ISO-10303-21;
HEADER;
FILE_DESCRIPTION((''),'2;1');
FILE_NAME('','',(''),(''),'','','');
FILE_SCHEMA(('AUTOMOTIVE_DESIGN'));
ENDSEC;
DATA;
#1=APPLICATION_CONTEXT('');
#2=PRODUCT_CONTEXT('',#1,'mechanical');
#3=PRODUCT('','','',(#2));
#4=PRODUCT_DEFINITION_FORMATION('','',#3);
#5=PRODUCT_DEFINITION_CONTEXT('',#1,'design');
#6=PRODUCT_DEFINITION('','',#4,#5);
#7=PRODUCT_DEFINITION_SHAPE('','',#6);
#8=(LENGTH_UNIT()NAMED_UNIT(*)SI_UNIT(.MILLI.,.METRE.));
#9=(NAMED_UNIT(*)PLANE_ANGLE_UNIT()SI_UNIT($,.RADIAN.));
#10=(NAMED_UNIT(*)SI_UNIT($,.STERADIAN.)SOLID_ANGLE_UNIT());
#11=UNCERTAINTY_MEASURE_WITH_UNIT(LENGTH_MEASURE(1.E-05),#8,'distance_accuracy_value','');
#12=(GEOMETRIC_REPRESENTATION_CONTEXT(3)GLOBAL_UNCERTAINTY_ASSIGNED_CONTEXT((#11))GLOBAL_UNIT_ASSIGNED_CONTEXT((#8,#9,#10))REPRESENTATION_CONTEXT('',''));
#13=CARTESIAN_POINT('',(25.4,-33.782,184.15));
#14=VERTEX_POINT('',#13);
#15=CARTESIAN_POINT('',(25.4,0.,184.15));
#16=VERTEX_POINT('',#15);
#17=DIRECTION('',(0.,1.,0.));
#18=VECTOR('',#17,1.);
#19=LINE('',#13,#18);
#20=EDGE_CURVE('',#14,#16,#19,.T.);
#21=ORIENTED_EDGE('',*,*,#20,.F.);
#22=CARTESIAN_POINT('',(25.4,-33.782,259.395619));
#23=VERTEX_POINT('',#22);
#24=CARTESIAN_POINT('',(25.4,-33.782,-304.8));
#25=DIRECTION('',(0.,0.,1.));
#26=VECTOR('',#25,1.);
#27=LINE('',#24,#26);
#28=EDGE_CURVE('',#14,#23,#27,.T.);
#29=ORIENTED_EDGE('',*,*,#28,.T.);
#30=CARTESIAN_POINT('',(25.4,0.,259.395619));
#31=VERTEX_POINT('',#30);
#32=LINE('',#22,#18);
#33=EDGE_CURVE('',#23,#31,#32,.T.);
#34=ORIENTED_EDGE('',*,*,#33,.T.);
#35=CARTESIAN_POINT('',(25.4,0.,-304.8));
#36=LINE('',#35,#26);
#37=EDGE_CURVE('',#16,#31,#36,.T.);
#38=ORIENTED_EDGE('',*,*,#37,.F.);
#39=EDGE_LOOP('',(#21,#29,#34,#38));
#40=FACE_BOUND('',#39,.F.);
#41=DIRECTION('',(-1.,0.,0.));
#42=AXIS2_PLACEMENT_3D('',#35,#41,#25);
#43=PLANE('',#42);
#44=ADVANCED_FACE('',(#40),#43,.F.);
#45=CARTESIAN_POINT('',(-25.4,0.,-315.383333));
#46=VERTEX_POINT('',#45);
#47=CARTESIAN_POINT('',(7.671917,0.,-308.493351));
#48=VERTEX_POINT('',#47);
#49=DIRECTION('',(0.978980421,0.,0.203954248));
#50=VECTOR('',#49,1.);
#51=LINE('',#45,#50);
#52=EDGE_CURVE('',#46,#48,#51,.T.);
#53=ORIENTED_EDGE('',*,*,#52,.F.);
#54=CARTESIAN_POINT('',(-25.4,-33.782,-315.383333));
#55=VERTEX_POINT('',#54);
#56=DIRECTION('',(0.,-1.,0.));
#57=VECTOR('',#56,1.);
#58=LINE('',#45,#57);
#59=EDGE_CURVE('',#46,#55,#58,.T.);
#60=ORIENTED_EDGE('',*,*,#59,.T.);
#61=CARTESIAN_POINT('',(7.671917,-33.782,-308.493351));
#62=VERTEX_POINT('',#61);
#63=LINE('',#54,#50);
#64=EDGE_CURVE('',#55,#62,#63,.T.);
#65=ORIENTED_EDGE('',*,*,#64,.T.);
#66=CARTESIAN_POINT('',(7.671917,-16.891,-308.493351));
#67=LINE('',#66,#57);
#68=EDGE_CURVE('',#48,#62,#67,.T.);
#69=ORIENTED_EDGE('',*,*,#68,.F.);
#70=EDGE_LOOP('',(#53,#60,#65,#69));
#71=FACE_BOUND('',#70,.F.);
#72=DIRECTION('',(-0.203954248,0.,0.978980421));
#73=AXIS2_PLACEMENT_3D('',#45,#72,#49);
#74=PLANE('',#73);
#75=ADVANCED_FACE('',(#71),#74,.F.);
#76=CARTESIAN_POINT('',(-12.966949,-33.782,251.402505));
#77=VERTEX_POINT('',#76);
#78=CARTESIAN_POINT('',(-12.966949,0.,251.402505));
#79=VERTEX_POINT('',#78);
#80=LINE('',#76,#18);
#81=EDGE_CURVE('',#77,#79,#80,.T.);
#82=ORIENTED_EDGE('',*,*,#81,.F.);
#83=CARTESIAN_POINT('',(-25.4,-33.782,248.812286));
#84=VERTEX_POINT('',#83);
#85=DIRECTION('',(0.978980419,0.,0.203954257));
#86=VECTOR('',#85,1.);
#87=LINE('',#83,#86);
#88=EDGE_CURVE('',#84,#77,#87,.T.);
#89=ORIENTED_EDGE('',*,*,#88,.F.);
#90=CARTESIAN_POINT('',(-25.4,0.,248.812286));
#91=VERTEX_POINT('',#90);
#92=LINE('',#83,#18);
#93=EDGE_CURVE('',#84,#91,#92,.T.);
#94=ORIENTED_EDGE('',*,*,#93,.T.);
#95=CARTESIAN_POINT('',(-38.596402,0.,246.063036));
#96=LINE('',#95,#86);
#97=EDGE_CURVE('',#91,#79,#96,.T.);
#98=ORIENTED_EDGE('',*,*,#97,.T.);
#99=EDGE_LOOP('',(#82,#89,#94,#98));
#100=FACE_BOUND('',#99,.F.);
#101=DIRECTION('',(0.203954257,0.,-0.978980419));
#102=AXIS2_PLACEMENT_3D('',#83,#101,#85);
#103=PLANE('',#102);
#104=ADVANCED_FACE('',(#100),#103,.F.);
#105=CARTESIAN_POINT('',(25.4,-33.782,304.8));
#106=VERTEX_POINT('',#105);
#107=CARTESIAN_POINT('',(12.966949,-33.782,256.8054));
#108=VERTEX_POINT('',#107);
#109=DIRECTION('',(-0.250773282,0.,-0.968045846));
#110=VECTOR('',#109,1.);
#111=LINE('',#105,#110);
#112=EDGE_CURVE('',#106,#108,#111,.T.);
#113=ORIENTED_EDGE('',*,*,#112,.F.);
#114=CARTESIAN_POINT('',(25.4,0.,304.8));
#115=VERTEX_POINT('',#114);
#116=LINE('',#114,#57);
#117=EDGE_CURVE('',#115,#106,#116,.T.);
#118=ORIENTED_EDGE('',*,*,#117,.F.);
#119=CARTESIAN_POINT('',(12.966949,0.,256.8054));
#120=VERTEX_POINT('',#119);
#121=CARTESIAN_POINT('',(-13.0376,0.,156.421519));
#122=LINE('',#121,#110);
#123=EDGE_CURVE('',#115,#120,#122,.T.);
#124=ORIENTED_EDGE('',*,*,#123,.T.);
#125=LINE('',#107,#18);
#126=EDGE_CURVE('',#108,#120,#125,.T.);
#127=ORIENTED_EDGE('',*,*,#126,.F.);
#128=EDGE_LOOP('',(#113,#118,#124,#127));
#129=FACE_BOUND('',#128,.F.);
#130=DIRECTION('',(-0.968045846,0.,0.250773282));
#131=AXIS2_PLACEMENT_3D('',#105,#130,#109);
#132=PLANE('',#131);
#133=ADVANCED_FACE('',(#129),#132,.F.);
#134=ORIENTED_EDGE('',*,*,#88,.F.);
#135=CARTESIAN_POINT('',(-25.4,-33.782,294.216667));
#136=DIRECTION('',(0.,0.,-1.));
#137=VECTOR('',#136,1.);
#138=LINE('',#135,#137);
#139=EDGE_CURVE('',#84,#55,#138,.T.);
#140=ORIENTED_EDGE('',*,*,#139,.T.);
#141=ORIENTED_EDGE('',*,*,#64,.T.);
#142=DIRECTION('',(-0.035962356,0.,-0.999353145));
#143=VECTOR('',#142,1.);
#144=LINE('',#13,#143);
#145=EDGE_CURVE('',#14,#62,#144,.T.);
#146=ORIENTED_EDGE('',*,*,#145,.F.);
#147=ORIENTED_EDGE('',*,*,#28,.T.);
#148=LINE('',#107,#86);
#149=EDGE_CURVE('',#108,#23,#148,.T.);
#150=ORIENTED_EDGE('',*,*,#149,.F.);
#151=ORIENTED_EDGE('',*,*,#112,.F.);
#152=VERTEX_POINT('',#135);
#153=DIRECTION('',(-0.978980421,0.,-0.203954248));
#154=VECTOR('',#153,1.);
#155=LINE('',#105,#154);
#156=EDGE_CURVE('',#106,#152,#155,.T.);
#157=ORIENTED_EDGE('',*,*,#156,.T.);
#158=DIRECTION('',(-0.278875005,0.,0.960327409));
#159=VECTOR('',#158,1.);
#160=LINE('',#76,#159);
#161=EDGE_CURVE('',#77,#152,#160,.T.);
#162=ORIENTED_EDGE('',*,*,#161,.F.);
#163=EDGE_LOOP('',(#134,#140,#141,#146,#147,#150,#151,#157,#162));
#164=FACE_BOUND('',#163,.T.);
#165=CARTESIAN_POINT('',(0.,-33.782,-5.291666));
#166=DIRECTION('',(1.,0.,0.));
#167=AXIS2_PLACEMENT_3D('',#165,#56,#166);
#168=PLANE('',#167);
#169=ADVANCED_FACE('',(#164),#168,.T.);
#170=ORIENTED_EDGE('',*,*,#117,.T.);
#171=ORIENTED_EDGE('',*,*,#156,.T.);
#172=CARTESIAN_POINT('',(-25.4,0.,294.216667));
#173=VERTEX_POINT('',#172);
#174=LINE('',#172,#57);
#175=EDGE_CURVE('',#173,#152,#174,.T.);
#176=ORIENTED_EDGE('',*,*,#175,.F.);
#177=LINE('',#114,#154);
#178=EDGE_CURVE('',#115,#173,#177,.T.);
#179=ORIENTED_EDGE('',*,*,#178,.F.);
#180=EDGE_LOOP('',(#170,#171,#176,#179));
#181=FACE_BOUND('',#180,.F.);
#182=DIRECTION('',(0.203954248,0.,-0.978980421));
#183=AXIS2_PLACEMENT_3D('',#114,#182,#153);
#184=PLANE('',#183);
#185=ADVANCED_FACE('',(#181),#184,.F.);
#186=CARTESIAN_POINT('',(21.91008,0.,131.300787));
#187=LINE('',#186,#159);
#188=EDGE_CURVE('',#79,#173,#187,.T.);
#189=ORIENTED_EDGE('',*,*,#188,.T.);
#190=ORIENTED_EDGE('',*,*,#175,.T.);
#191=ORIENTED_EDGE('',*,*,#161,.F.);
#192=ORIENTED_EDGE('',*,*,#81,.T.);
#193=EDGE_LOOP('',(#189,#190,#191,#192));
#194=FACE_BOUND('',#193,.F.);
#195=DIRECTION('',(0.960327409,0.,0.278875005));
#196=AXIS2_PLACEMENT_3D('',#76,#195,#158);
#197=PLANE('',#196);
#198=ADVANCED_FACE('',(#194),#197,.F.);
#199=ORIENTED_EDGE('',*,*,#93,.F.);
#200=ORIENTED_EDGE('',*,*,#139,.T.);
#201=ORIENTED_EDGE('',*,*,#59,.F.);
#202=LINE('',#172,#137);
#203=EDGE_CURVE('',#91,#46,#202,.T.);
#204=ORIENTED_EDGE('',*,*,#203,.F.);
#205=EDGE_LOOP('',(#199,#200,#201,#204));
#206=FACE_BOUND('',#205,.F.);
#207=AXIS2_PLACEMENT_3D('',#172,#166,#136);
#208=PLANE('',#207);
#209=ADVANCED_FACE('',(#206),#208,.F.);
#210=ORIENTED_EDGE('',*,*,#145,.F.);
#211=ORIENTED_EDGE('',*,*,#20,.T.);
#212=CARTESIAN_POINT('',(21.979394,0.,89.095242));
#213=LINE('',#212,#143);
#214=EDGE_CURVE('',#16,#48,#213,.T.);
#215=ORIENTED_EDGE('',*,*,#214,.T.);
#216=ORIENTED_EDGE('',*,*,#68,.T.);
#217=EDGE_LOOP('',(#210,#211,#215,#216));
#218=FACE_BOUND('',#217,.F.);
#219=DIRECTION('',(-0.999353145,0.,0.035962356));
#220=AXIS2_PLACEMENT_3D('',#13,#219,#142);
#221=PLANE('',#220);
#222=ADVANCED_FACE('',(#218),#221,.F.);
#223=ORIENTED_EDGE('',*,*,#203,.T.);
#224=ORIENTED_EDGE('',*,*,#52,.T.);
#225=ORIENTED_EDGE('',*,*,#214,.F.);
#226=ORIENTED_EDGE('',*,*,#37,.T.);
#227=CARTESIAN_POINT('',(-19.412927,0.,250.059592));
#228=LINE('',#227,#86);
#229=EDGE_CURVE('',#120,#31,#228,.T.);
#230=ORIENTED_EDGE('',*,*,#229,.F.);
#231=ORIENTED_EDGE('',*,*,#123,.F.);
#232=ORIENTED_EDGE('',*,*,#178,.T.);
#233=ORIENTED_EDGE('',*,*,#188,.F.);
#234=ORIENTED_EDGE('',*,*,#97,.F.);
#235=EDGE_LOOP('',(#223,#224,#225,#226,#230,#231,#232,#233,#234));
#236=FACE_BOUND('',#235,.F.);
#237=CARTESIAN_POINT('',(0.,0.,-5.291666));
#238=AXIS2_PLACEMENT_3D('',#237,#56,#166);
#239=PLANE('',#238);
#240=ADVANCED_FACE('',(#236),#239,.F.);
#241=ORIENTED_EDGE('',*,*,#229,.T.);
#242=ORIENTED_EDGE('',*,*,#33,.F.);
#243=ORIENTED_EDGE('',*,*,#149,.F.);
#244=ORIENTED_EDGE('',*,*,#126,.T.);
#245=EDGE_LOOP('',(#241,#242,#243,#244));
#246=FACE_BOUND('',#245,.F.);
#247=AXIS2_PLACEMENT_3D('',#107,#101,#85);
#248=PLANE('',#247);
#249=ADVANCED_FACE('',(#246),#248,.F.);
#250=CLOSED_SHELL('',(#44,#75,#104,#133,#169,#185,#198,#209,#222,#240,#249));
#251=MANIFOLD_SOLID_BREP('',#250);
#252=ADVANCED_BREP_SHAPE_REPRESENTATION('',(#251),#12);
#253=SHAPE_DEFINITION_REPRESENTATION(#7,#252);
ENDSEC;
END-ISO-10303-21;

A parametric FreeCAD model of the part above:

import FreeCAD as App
import Part
import Sketcher
from FreeCAD import Vector
Q = App.Units.Quantity


def add_polygon(sketch, points):
    """Adds a closed chain of lines whose ends are joined by coincident constraints."""
    first, n = sketch.GeometryCount, len(points)
    for a, b in zip(points, points[1:] + points[:1]):
        sketch.addGeometry(Part.LineSegment(App.Vector(*a, 0), App.Vector(*b, 0)), False)
    for i in range(n):
        sketch.addConstraint(Sketcher.Constraint("Coincident", first + i, 2, first + (i + 1) % n, 1))

doc = App.newDocument("Part")
params = doc.addObject("Spreadsheet::Sheet", "Params")
for row, (alias, value) in enumerate([
    ("sketch1_height", "24 in"),
    ("pad1_length", "1.33 in"),
    ("sketch2_height", "19.25 in"),
    ("sketch3_length", "0.5 in"),
], start=1):
    params.set(f"A{row}", alias)
    params.set(f"B{row}", "=" + value)
    params.setAlias(f"B{row}", alias)

body = doc.addObject("PartDesign::Body", "Body")

sketch1 = body.newObject("Sketcher::SketchObject", "Sketch")
sketch1.AttachmentSupport = (doc.getObject("XZ_Plane"), [""])
sketch1.MapMode = "FlatFace"
add_polygon(sketch1, [(25.4, -304.8), (25.4, 304.8), (-25.4, 294.216667), (-25.4, -315.383333)])
sketch1.addConstraint(Sketcher.Constraint("Vertical", 0))
sketch1.addConstraint(Sketcher.Constraint("Vertical", 2))
sketch1.addConstraint(Sketcher.Constraint("Parallel", 1, 3))
sketch1.addConstraint(Sketcher.Constraint("DistanceY", 0, 1, 0, 2, Q("24 in")))
sketch1.addConstraint(Sketcher.Constraint("DistanceX", -1, 1, 0, 2, Q("1 in")))
sketch1.addConstraint(Sketcher.Constraint("DistanceY", -1, 1, 0, 2, Q("12 in")))
sketch1.addConstraint(Sketcher.Constraint("DistanceX", 1, 2, -1, 1, Q("1 in")))
sketch1.addConstraint(Sketcher.Constraint("Distance", 1, 51.890721))
sketch1.setExpression("Constraints[7]", "Params.sketch1_height")
pad1 = body.newObject("PartDesign::Pad", "Pad")
pad1.Profile = sketch1
pad1.setExpression("Length", "Params.pad1_length")

sketch2 = body.newObject("Sketcher::SketchObject", "Sketch001")
sketch2.AttachmentSupport = (doc.getObject("XZ_Plane"), [""])
sketch2.MapMode = "FlatFace"
sketch2.AttachmentOffset = App.Placement(Vector(0, 0, 1.33 * 25.4), App.Rotation())
add_polygon(sketch2, [(25.4, 184.15), (7.671917, -308.493351), (25.4, -304.8)])
sketch2.addConstraint(Sketcher.Constraint("Vertical", 2))
sketch2.addConstraint(Sketcher.Constraint("DistanceX", -1, 1, 1, 2, Q("1 in")))
sketch2.addConstraint(Sketcher.Constraint("DistanceY", 1, 2, -1, 1, Q("12 in")))
sketch2.addConstraint(Sketcher.Constraint("DistanceY", 2, 1, 2, 2, Q("19.25 in")))
sketch2.addConstraint(Sketcher.Constraint("Distance", 1, 18.108721))
sketch2.addConstraint(Sketcher.Constraint("DistanceY", 0, 2, -1, 1, 308.493351))
sketch2.setExpression("Constraints[6]", "Params.sketch2_height")
pocket1 = body.newObject("PartDesign::Pocket", "Pocket")
pocket1.Profile = sketch2
pocket1.Type = "ThroughAll"

sketch3 = body.newObject("Sketcher::SketchObject", "Sketch002")
sketch3.AttachmentSupport = (doc.getObject("XZ_Plane"), [""])
sketch3.MapMode = "FlatFace"
sketch3.AttachmentOffset = App.Placement(Vector(0, 0, 1.33 * 25.4), App.Rotation())
add_polygon(sketch3, [(-25.4, 294.216667), (-25.4, 248.812286), (-12.966949, 251.402505)])
add_polygon(sketch3, [(25.4, 259.395619), (25.4, 304.8), (12.966949, 256.8054)])
sketch3.addConstraint(Sketcher.Constraint("Vertical", 0))
sketch3.addConstraint(Sketcher.Constraint("Vertical", 3))
sketch3.addConstraint(Sketcher.Constraint("Parallel", 1, 5))
sketch3.addConstraint(Sketcher.Constraint("Equal", 0, 3))
sketch3.addConstraint(Sketcher.Constraint("Equal", 1, 5))
sketch3.addConstraint(Sketcher.Constraint("DistanceX", 0, 2, -1, 1, Q("1 in")))
sketch3.addConstraint(Sketcher.Constraint("DistanceX", -1, 1, 3, 2, Q("1 in")))
sketch3.addConstraint(Sketcher.Constraint("DistanceY", -1, 1, 3, 2, Q("12 in")))
sketch3.addConstraint(Sketcher.Constraint("Distance", 1, Q("0.5 in")))
sketch3.addConstraint(Sketcher.Constraint("DistanceY", 0, 2, 0, 1, 45.404381))
sketch3.addConstraint(Sketcher.Constraint("DistanceY", -1, 1, 4, 2, 256.8054))
sketch3.addConstraint(Sketcher.Constraint("DistanceY", -1, 1, 0, 2, 248.812286))
sketch3.setExpression("Constraints[14]", "Params.sketch3_length")
pocket2 = body.newObject("PartDesign::Pocket", "Pocket001")
pocket2.Profile = sketch3
pocket2.Type = "ThroughAll"

doc.recompute()
